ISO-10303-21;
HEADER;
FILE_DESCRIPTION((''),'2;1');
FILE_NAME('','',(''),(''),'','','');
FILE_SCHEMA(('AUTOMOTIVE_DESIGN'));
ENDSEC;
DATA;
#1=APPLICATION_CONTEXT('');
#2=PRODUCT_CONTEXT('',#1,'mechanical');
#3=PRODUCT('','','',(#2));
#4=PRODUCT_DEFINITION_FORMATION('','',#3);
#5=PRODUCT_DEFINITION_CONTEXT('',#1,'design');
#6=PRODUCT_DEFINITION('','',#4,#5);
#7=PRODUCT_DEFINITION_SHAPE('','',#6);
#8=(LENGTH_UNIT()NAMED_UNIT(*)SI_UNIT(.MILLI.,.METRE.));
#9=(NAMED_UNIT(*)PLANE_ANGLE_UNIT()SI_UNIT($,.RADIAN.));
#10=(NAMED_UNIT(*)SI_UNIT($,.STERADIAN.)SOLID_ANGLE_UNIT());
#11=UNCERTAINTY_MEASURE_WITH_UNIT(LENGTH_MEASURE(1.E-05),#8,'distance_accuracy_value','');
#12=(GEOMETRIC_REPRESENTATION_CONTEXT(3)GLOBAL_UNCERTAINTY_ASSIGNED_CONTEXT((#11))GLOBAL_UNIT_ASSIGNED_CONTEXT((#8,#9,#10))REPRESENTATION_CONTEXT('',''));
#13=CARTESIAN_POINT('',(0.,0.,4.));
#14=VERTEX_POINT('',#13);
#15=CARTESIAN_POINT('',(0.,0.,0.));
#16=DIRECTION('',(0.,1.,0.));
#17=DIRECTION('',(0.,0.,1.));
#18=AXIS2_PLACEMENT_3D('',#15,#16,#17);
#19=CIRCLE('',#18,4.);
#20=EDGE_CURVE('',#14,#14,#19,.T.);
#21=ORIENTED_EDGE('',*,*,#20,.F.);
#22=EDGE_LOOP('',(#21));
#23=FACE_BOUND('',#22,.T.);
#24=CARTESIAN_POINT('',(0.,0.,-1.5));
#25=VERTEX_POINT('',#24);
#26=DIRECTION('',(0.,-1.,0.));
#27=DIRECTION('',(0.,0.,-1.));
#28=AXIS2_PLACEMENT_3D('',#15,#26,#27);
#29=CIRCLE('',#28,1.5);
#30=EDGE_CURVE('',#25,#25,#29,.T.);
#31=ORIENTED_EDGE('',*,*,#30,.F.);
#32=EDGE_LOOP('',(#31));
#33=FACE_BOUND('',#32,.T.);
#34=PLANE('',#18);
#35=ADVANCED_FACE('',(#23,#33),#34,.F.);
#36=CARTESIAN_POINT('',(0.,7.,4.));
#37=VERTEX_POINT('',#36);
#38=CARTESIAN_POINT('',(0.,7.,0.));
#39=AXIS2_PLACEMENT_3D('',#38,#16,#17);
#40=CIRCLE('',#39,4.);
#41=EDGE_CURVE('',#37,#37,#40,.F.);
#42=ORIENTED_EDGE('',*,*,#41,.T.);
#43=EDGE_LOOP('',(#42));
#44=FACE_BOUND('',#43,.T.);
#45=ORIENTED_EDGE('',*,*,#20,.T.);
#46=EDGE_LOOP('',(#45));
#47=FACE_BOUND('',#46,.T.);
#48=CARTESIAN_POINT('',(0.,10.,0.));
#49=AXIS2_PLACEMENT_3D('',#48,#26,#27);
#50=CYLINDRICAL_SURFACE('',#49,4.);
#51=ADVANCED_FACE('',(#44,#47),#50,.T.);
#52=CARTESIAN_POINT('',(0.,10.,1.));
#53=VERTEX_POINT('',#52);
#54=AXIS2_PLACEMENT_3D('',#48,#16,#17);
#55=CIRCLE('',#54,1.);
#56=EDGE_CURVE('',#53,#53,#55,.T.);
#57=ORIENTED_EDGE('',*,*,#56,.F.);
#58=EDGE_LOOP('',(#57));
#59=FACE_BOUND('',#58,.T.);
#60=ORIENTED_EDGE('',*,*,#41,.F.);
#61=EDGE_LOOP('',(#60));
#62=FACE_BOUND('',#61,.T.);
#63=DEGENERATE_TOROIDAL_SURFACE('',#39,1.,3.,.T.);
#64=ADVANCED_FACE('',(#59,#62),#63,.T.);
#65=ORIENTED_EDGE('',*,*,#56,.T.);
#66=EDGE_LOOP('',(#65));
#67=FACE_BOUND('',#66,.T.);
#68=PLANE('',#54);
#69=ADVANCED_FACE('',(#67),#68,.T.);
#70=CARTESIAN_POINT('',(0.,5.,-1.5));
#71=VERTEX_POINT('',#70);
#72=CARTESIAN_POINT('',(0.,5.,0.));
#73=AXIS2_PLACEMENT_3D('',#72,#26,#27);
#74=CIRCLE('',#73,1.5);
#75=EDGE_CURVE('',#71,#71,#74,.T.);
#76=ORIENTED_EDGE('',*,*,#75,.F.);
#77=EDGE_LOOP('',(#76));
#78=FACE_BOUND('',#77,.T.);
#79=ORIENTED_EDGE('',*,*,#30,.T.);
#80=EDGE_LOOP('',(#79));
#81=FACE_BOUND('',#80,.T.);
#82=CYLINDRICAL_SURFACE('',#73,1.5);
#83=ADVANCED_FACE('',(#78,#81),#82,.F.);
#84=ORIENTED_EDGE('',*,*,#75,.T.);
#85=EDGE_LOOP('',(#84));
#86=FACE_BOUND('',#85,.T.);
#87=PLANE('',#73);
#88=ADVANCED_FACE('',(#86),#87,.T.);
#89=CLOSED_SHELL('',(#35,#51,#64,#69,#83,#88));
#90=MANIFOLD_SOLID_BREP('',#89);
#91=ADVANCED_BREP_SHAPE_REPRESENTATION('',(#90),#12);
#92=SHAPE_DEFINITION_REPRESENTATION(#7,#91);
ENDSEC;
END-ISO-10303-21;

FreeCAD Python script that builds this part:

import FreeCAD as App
import Part
import Sketcher


def edges_at(feature, points):
    """Names of the edges that pass closest to the given points."""
    edges = feature.Shape.Edges
    near = lambda p: min(range(len(edges)), key=lambda i: edges[i].distToShape(Part.Vertex(*p))[0])
    return sorted({f"Edge{near(p) + 1}" for p in points})

doc = App.newDocument("Part")
body = doc.addObject("PartDesign::Body", "Body")

sketch1 = doc.addObject("Sketcher::SketchObject", "Sketch")
body.addObject(sketch1)
sketch1.AttachmentSupport = (doc.XZ_Plane, [""])
sketch1.MapMode = "FlatFace"
sketch1.addGeometry(Part.Circle(App.Vector(0, 0, 0), App.Vector(0, 0, 1), 4), False)
sketch1.addConstraint([
    Sketcher.Constraint("Coincident", 0, 3, -1, 1),
    Sketcher.Constraint("Diameter", 0, 8.0),
])
pad1 = doc.addObject("PartDesign::Pad", "Pad")
body.addObject(pad1)
pad1.Profile = sketch1
pad1.Length = 10
pad1.Reversed = True
doc.recompute()

fillet = doc.addObject("PartDesign::Fillet", "Fillet")
body.addObject(fillet)
fillet.Base = (pad1, edges_at(pad1, [(-4, 10, 0)]))
fillet.Radius = 3

sketch2 = doc.addObject("Sketcher::SketchObject", "Sketch001")
body.addObject(sketch2)
sketch2.AttachmentSupport = (doc.XZ_Plane, [""])
sketch2.MapMode = "FlatFace"
sketch2.addGeometry(Part.Circle(App.Vector(0, 0, 0), App.Vector(0, 0, 1), 1.5), False)
sketch2.addConstraint([
    Sketcher.Constraint("Coincident", 0, 3, -1, 1),
    Sketcher.Constraint("Diameter", 0, 3.0),
])
pocket1 = doc.addObject("PartDesign::Pocket", "Pocket")
body.addObject(pocket1)
pocket1.Profile = sketch2
pocket1.Length = 5

doc.recompute()
